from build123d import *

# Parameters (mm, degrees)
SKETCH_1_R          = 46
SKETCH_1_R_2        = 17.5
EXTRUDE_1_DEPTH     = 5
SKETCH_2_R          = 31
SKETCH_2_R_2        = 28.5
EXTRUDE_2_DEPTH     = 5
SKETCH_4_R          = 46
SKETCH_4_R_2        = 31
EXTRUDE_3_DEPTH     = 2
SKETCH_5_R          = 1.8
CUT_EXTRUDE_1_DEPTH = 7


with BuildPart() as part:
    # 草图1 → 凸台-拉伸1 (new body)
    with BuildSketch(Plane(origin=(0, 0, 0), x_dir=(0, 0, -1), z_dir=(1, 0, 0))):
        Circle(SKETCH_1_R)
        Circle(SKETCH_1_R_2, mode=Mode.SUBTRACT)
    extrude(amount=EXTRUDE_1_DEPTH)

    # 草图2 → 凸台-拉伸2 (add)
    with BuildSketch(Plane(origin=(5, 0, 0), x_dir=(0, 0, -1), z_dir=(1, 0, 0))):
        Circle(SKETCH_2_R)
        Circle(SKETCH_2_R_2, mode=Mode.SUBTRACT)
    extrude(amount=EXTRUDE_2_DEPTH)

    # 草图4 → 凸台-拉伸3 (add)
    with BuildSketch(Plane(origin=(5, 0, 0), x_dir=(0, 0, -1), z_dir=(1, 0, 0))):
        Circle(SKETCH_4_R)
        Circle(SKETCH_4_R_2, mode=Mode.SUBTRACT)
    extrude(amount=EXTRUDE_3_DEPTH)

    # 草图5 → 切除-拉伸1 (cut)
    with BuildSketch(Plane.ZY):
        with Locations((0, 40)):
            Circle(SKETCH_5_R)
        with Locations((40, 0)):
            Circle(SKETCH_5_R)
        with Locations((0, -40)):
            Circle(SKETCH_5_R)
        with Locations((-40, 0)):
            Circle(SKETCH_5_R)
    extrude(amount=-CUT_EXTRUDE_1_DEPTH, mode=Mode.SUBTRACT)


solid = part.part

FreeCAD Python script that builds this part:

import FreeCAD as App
import Part
import Sketcher
from FreeCAD import Vector
Q = App.Units.Quantity

doc = App.newDocument("Part")
params = doc.addObject("Spreadsheet::Sheet", "Params")
for row, (alias, value) in enumerate([
    ("sketch1_diameter", "92 mm"),
    ("sketch1_diameter2", "35 mm"),
    ("pad1_length", "5 mm"),
    ("sketch2_diameter", "62 mm"),
    ("sketch2_diameter2", "57 mm"),
    ("pad2_length", "5 mm"),
    ("sketch3_diameter", "92 mm"),
    ("sketch3_diameter2", "62 mm"),
    ("pad3_length", "2 mm"),
    ("sketch4_diameter", "3.6 mm"),
    ("pocket1_length", "7 mm"),
], start=1):
    params.set(f"A{row}", alias)
    params.set(f"B{row}", "=" + value)
    params.setAlias(f"B{row}", alias)

body = doc.addObject("PartDesign::Body", "Body")

sketch1 = body.newObject("Sketcher::SketchObject", "Sketch")
sketch1.AttachmentSupport = (doc.getObject("YZ_Plane"), [""])
sketch1.MapMode = "FlatFace"
sketch1.addGeometry(Part.Circle(Vector(0, 0, 0), Vector(0, 0, 1), 46), False)
sketch1.addGeometry(Part.Circle(Vector(0, 0, 0), Vector(0, 0, 1), 18), False)
sketch1.addConstraint(Sketcher.Constraint("Coincident", 0, 3, -1, 1))
sketch1.addConstraint(Sketcher.Constraint("Coincident", 1, 3, -1, 1))
sketch1.addConstraint(Sketcher.Constraint("Diameter", 0, Q("92 mm")))
sketch1.addConstraint(Sketcher.Constraint("Diameter", 1, Q("35 mm")))
sketch1.setExpression("Constraints[2]", "Params.sketch1_diameter")
sketch1.setExpression("Constraints[3]", "Params.sketch1_diameter2")
pad1 = body.newObject("PartDesign::Pad", "Pad")
pad1.Profile = sketch1
pad1.setExpression("Length", "Params.pad1_length")

sketch2 = body.newObject("Sketcher::SketchObject", "Sketch001")
sketch2.AttachmentSupport = (doc.getObject("YZ_Plane"), [""])
sketch2.MapMode = "FlatFace"
sketch2.AttachmentOffset = App.Placement(Vector(0, 0, 5), App.Rotation())
sketch2.addGeometry(Part.Circle(Vector(0, 0, 0), Vector(0, 0, 1), 31), False)
sketch2.addGeometry(Part.Circle(Vector(0, 0, 0), Vector(0, 0, 1), 28), False)
sketch2.addConstraint(Sketcher.Constraint("Coincident", 0, 3, -1, 1))
sketch2.addConstraint(Sketcher.Constraint("Coincident", 1, 3, -1, 1))
sketch2.addConstraint(Sketcher.Constraint("Diameter", 0, Q("62 mm")))
sketch2.addConstraint(Sketcher.Constraint("Diameter", 1, Q("57 mm")))
sketch2.setExpression("Constraints[2]", "Params.sketch2_diameter")
sketch2.setExpression("Constraints[3]", "Params.sketch2_diameter2")
pad2 = body.newObject("PartDesign::Pad", "Pad001")
pad2.Profile = sketch2
pad2.setExpression("Length", "Params.pad2_length")

sketch3 = body.newObject("Sketcher::SketchObject", "Sketch002")
sketch3.AttachmentSupport = (doc.getObject("YZ_Plane"), [""])
sketch3.MapMode = "FlatFace"
sketch3.AttachmentOffset = App.Placement(Vector(0, 0, 5), App.Rotation())
sketch3.addGeometry(Part.Circle(Vector(0, 0, 0), Vector(0, 0, 1), 46), False)
sketch3.addGeometry(Part.Circle(Vector(0, 0, 0), Vector(0, 0, 1), 31), False)
sketch3.addConstraint(Sketcher.Constraint("Coincident", 0, 3, -1, 1))
sketch3.addConstraint(Sketcher.Constraint("Coincident", 1, 3, -1, 1))
sketch3.addConstraint(Sketcher.Constraint("Diameter", 0, Q("92 mm")))
sketch3.addConstraint(Sketcher.Constraint("Diameter", 1, Q("62 mm")))
sketch3.setExpression("Constraints[2]", "Params.sketch3_diameter")
sketch3.setExpression("Constraints[3]", "Params.sketch3_diameter2")
pad3 = body.newObject("PartDesign::Pad", "Pad002")
pad3.Profile = sketch3
pad3.setExpression("Length", "Params.pad3_length")

sketch4 = body.newObject("Sketcher::SketchObject", "Sketch003")
sketch4.AttachmentSupport = (doc.getObject("YZ_Plane"), [""])
sketch4.MapMode = "FlatFace"
sketch4.addGeometry(Part.Circle(Vector(40, 0, 0), Vector(0, 0, 1), 1.8), False)
sketch4.addGeometry(Part.Circle(Vector(0, 40, 0), Vector(0, 0, 1), 1.8), False)
sketch4.addGeometry(Part.Circle(Vector(-40, 0, 0), Vector(0, 0, 1), 1.8), False)
sketch4.addGeometry(Part.Circle(Vector(0, -40, 0), Vector(0, 0, 1), 1.8), False)
sketch4.addConstraint(Sketcher.Constraint("Equal", 0, 1))
sketch4.addConstraint(Sketcher.Constraint("Equal", 1, 2))
sketch4.addConstraint(Sketcher.Constraint("Equal", 2, 3))
sketch4.addConstraint(Sketcher.Constraint("Symmetric", 0, 3, 2, 3, -1, 1))
sketch4.addConstraint(Sketcher.Constraint("Symmetric", 1, 3, 3, 3, -1, 1))
sketch4.addConstraint(Sketcher.Constraint("PointOnObject", 0, 3, -1))
sketch4.addConstraint(Sketcher.Constraint("PointOnObject", 1, 3, -2))
sketch4.addConstraint(Sketcher.Constraint("Diameter", 0, Q("3.6 mm")))
sketch4.addConstraint(Sketcher.Constraint("DistanceX", -1, 1, 0, 3, Q("40 mm")))
sketch4.addConstraint(Sketcher.Constraint("DistanceY", -1, 1, 1, 3, Q("40 mm")))
sketch4.setExpression("Constraints[7]", "Params.sketch4_diameter")
pocket1 = body.newObject("PartDesign::Pocket", "Pocket")
pocket1.Profile = sketch4
pocket1.setExpression("Length", "Params.pocket1_length")
pocket1.Reversed = True

doc.recompute()
